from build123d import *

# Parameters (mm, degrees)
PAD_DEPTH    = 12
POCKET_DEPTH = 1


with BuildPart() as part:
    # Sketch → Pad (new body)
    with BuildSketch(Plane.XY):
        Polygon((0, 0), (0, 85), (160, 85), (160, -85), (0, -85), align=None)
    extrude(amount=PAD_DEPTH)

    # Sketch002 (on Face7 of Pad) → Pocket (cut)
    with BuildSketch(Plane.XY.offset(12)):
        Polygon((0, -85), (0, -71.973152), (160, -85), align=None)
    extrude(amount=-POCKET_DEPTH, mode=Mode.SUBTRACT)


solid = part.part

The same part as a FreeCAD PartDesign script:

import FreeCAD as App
import Part
import Sketcher
from FreeCAD import Vector

doc = App.newDocument("Part")
body = doc.addObject("PartDesign::Body", "Body")

# Sketch on XY plane
sketch1 = doc.addObject("Sketcher::SketchObject", "Sketch")
body.addObject(sketch1)
sketch1.AttachmentSupport = (doc.XY_Plane, [""])
sketch1.MapMode = "FlatFace"
sketch1.addGeometry(Part.LineSegment(Vector(0, 85, 0), Vector(0, -85, 0)), False)
sketch1.addGeometry(Part.LineSegment(Vector(0, -85, 0), Vector(160, -85, 0)), False)
sketch1.addGeometry(Part.LineSegment(Vector(160, -85, 0), Vector(160, 85, 0)), False)
sketch1.addGeometry(Part.LineSegment(Vector(160, 85, 0), Vector(0, 85, 0)), False)
sketch1.addConstraint(Sketcher.Constraint("Coincident", 0, 2, 1, 1))
sketch1.addConstraint(Sketcher.Constraint("Coincident", 1, 2, 2, 1))
sketch1.addConstraint(Sketcher.Constraint("Coincident", 2, 2, 3, 1))
sketch1.addConstraint(Sketcher.Constraint("Coincident", 3, 2, 0, 1))
sketch1.addConstraint(Sketcher.Constraint("Vertical", 0))
sketch1.addConstraint(Sketcher.Constraint("Horizontal", 1))
sketch1.addConstraint(Sketcher.Constraint("Vertical", 2))
sketch1.addConstraint(Sketcher.Constraint("Horizontal", 3))
sketch1.addConstraint(Sketcher.Constraint("Symmetric", 0, 2, 3, 2, -1, 1))
sketch1.addConstraint(Sketcher.Constraint("DistanceX", 1, 1, 1, 2, 160.0))
sketch1.addConstraint(Sketcher.Constraint("DistanceY", 0, 2, 0, 1, 170.0))
pad1 = doc.addObject("PartDesign::Pad", "Pad")
body.addObject(pad1)
pad1.Profile = sketch1
pad1.Length = 12

# Sketch on XY plane
sketch2 = doc.addObject("Sketcher::SketchObject", "Sketch001")
body.addObject(sketch2)
sketch2.AttachmentSupport = (doc.XY_Plane, [""])
sketch2.MapMode = "FlatFace"
sketch2.AttachmentOffset = App.Placement(Vector(0, 0, 12), App.Rotation())
sketch2.addGeometry(Part.LineSegment(Vector(0, -72, 0), Vector(0, -85, 0)), False)
sketch2.addGeometry(Part.LineSegment(Vector(0, -85, 0), Vector(160, -85, 0)), False)
sketch2.addGeometry(Part.LineSegment(Vector(160, -85, 0), Vector(0, -72, 0)), False)
sketch2.addConstraint(Sketcher.Constraint("Coincident", 0, 2, 1, 1))
sketch2.addConstraint(Sketcher.Constraint("Coincident", 1, 2, 2, 1))
sketch2.addConstraint(Sketcher.Constraint("Coincident", 2, 2, 0, 1))
sketch2.addConstraint(Sketcher.Constraint("Vertical", 0))
sketch2.addConstraint(Sketcher.Constraint("Horizontal", 1))
sketch2.addConstraint(Sketcher.Constraint("PointOnObject", 0, 2, -2))
sketch2.addConstraint(Sketcher.Constraint("DistanceX", 1, 1, 1, 2, 160.0))
sketch2.addConstraint(Sketcher.Constraint("DistanceY", 0, 2, -1, 1, 85.0))
sketch2.addConstraint(Sketcher.Constraint("DistanceY", 0, 2, 0, 1, 13.026848))
pocket1 = doc.addObject("PartDesign::Pocket", "Pocket")
body.addObject(pocket1)
pocket1.Profile = sketch2
pocket1.Length = 1

doc.recompute()
